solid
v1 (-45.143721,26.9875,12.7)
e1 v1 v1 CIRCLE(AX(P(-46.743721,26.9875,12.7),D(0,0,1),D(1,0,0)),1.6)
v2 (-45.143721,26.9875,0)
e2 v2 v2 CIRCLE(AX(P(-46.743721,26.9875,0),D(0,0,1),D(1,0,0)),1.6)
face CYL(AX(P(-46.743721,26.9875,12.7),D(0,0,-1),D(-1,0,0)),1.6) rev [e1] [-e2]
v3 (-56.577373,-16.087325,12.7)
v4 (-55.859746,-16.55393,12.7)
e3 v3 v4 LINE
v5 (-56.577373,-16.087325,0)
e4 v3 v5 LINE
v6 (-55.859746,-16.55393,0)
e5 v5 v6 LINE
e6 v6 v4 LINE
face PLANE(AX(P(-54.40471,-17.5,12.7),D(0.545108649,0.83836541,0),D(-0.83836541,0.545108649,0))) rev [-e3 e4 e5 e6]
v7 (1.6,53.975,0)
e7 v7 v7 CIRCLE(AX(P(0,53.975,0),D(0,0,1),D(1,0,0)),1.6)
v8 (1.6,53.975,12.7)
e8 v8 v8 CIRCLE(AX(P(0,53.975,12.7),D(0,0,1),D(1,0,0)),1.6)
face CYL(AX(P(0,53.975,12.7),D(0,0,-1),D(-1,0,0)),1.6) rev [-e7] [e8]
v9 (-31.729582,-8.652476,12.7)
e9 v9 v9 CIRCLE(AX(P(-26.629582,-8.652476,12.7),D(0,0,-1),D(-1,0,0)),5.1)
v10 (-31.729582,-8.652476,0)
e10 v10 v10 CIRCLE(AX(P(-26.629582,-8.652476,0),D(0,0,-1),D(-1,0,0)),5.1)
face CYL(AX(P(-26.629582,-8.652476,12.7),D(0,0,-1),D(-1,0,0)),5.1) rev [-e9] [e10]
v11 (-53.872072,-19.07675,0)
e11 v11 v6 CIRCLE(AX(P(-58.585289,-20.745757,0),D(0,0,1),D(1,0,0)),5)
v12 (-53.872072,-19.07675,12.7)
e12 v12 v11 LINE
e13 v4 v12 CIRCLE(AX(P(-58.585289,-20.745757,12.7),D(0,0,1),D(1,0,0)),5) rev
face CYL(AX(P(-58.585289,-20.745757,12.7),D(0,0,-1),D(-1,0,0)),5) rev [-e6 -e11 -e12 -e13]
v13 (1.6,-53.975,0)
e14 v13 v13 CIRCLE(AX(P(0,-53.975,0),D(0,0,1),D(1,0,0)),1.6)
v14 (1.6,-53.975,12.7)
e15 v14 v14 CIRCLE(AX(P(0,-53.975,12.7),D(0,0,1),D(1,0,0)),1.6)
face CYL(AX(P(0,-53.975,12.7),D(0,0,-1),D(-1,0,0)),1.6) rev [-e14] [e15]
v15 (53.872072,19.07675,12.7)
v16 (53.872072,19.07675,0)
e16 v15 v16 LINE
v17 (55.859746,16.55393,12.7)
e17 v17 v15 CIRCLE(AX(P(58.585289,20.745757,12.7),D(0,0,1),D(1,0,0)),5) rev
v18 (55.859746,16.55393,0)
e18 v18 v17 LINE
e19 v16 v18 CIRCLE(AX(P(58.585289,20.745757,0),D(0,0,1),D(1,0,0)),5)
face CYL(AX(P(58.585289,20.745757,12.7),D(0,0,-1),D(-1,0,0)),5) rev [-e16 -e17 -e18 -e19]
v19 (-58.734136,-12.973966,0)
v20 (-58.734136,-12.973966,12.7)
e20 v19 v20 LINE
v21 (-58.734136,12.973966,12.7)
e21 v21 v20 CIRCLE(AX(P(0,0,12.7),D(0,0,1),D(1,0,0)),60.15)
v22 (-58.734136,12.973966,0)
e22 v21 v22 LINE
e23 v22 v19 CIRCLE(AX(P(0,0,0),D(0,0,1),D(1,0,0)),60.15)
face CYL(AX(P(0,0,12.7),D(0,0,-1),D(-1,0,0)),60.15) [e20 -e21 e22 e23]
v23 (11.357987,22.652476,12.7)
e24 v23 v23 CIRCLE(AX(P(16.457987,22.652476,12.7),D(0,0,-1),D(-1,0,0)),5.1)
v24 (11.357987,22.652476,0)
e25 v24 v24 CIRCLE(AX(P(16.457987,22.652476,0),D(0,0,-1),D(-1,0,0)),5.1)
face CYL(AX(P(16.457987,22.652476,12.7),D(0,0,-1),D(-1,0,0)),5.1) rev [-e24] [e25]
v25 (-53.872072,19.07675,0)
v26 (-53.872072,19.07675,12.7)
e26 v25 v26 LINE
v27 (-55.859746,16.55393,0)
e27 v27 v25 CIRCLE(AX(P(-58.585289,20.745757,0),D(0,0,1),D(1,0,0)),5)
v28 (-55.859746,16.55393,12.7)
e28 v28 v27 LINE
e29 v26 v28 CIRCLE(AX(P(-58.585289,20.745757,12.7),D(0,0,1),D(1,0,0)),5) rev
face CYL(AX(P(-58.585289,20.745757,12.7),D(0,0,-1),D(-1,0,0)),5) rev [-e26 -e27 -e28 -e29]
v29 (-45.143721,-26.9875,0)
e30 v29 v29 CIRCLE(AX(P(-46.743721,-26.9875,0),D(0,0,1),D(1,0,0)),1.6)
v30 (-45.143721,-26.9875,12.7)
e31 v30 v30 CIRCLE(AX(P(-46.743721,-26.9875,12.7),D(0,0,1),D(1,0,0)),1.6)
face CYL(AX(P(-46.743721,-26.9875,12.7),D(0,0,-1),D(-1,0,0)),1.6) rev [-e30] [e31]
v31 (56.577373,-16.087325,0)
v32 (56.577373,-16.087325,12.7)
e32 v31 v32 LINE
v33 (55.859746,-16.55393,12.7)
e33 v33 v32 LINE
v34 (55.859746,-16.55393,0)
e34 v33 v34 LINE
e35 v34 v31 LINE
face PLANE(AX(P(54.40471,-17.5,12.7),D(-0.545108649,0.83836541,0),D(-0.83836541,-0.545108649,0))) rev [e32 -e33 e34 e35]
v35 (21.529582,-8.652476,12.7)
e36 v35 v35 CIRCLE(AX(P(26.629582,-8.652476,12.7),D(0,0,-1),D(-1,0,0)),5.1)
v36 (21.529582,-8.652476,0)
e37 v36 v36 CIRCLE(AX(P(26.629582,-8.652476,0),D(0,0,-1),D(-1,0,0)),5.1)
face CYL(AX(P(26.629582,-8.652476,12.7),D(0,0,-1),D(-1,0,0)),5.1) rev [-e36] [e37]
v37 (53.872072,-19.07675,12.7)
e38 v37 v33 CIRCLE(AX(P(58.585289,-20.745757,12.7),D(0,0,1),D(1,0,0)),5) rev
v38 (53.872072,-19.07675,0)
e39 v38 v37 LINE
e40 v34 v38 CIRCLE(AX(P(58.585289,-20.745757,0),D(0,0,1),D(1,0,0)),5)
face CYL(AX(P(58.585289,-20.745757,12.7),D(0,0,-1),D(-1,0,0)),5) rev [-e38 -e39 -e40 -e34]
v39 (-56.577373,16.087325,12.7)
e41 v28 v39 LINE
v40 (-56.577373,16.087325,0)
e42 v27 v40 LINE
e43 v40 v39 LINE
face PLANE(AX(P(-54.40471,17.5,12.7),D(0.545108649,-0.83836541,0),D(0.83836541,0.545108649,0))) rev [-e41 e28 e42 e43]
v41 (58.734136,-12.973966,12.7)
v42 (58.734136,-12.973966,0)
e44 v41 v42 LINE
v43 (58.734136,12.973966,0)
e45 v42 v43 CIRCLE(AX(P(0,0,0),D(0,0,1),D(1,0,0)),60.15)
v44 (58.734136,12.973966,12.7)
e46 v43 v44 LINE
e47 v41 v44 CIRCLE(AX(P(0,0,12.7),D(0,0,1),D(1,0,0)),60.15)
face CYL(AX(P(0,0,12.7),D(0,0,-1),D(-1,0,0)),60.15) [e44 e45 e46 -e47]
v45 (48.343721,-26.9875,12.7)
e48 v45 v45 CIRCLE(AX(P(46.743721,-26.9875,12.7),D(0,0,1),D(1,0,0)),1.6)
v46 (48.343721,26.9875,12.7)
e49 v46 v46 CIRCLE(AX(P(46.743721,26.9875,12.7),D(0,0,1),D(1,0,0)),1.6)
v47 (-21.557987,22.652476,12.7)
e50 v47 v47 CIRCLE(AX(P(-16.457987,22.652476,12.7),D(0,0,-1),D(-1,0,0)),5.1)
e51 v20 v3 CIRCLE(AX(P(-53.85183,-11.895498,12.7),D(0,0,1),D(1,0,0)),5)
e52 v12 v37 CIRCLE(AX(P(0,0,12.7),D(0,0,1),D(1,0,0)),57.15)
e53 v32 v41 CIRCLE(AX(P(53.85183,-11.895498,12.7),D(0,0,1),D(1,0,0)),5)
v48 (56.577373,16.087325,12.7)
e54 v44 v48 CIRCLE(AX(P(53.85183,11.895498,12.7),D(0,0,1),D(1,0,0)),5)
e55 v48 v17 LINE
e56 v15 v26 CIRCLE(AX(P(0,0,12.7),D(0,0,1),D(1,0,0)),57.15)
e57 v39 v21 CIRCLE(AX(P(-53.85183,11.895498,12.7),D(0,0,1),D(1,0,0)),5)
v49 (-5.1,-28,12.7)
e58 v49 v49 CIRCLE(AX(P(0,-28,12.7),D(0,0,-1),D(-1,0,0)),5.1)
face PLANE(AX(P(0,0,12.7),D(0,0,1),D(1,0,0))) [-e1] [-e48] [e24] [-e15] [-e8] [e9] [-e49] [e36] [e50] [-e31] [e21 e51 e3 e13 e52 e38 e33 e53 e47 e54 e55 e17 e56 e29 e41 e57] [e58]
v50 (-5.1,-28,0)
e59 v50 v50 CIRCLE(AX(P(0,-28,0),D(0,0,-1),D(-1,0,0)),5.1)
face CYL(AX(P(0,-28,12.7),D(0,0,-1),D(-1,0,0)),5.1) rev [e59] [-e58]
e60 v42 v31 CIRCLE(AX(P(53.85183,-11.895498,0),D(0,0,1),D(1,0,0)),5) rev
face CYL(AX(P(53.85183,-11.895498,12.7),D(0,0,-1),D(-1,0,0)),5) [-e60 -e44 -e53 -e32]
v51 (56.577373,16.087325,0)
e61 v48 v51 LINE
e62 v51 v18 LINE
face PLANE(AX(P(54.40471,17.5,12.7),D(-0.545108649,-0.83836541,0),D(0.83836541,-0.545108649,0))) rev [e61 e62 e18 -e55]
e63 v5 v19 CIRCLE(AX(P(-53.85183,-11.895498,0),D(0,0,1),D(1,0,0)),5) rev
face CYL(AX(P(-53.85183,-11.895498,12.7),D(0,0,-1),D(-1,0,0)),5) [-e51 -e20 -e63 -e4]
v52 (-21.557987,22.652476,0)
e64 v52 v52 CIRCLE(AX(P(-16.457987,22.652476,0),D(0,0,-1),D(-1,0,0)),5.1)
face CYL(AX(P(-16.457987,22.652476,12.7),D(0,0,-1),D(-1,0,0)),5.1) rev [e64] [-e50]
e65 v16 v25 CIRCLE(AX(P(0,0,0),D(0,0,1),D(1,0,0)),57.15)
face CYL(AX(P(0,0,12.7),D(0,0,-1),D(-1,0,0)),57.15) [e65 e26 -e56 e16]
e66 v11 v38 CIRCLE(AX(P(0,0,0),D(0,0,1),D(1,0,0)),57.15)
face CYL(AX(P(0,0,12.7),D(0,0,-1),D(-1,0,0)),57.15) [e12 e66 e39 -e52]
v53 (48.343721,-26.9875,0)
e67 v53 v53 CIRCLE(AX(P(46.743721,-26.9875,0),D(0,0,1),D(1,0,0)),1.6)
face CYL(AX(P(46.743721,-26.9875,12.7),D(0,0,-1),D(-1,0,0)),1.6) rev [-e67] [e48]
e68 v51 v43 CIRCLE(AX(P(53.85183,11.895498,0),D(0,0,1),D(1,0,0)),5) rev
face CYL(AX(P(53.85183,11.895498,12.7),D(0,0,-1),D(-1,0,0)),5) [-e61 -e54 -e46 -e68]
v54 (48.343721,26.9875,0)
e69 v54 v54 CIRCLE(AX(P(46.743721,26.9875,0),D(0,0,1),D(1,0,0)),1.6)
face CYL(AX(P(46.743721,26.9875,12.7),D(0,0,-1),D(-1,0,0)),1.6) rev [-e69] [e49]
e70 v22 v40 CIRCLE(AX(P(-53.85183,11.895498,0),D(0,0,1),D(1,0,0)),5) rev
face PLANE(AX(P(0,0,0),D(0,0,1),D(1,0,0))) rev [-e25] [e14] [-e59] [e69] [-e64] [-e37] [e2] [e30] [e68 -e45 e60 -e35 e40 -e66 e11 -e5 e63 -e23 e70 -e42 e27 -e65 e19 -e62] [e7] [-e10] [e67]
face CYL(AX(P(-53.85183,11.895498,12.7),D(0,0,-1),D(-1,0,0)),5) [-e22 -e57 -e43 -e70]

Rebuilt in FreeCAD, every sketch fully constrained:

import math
import FreeCAD as App
import Part
import Sketcher
from FreeCAD import Vector
Q = App.Units.Quantity


def edges_at(feature, points):
    """Names of the edges that pass closest to the given points."""
    edges = feature.Shape.Edges
    near = lambda p: min(range(len(edges)), key=lambda i: edges[i].distToShape(Part.Vertex(*p))[0])
    return sorted({f"Edge{near(p) + 1}" for p in points})

doc = App.newDocument("Part")
body = doc.addObject("PartDesign::Body", "Body")

sketch1 = body.newObject("Sketcher::SketchObject", "Sketch")
sketch1.AttachmentSupport = (doc.getObject("XY_Plane"), [""])
sketch1.MapMode = "FlatFace"
sketch1.addGeometry([
    Part.LineSegment(Vector(58.249657, 15, 0), Vector(54.40471, 17.5, 0)),
    Part.ArcOfCircle(Part.Circle(Vector(0, 0, 0), Vector(0, 0, 1), 57.15), math.radians(17.831079), math.radians(162.168921)),
    Part.LineSegment(Vector(-54.40471, 17.5, 0), Vector(-58.249657, 15, 0)),
    Part.ArcOfCircle(Part.Circle(Vector(0, 0, 0), Vector(0, 0, 1), 60.15), math.radians(165.559377), math.radians(194.440623)),
    Part.LineSegment(Vector(-58.249657, -15, 0), Vector(-54.40471, -17.5, 0)),
    Part.ArcOfCircle(Part.Circle(Vector(0, 0, 0), Vector(0, 0, 1), 57.15), math.radians(-162.168921), math.radians(-17.831079)),
    Part.LineSegment(Vector(54.40471, -17.5, 0), Vector(58.249657, -15, 0)),
    Part.ArcOfCircle(Part.Circle(Vector(0, 0, 0), Vector(0, 0, 1), 60.15), math.radians(-14.440623), math.radians(14.440623)),
    Part.Circle(Vector(46.743721, -26.9875, 0), Vector(0, 0, 1), 1.6),
    Part.Circle(Vector(0, -53.975, 0), Vector(0, 0, 1), 1.6),
    Part.Circle(Vector(-46.743721, -26.9875, 0), Vector(0, 0, 1), 1.6),
    Part.Circle(Vector(46.743721, 26.9875, 0), Vector(0, 0, 1), 1.6),
    Part.Circle(Vector(-46.743721, 26.9875, 0), Vector(0, 0, 1), 1.6),
    Part.Circle(Vector(0, 53.975, 0), Vector(0, 0, 1), 1.6),
], False)
sketch1.addConstraint([
    Sketcher.Constraint("Coincident", 0, 2, 1, 1),
    Sketcher.Constraint("Coincident", 1, 2, 2, 1),
    Sketcher.Constraint("Coincident", 2, 2, 3, 1),
    Sketcher.Constraint("Coincident", 3, 2, 4, 1),
    Sketcher.Constraint("Coincident", 4, 2, 5, 1),
    Sketcher.Constraint("Coincident", 5, 2, 6, 1),
    Sketcher.Constraint("Coincident", 6, 2, 7, 1),
    Sketcher.Constraint("Coincident", 7, 2, 0, 1),
    Sketcher.Constraint("Coincident", 1, 3, -1, 1),
    Sketcher.Constraint("Coincident", 3, 3, -1, 1),
    Sketcher.Constraint("Coincident", 5, 3, -1, 1),
    Sketcher.Constraint("Coincident", 7, 3, -1, 1),
    Sketcher.Constraint("Equal", 1, 5),
    Sketcher.Constraint("Equal", 3, 7),
    Sketcher.Constraint("Equal", 8, 9),
    Sketcher.Constraint("Equal", 9, 10),
    Sketcher.Constraint("Equal", 10, 11),
    Sketcher.Constraint("Equal", 11, 12),
    Sketcher.Constraint("Equal", 12, 13),
    Sketcher.Constraint("Symmetric", 10, 3, 11, 3, -1, 1),
    Sketcher.Constraint("Symmetric", 8, 3, 12, 3, -1, 1),
    Sketcher.Constraint("Symmetric", 9, 3, 13, 3, -1, 1),
    Sketcher.Constraint("Symmetric", 8, 3, 10, 3, -2),
    Sketcher.Constraint("PointOnObject", 9, 3, -2),
    Sketcher.Constraint("Parallel", 0, 4),
    Sketcher.Constraint("Parallel", 2, 6),
    Sketcher.Constraint("Horizontal", 0, 2, 1, 2),
    Sketcher.Constraint("Horizontal", 4, 2, 5, 2),
    Sketcher.Constraint("Horizontal", 3, 2, 6, 2),
    Sketcher.Constraint("Vertical", 2, 2, 3, 2),
    Sketcher.Constraint("Diameter", 8, Q("3.2 mm")),
    Sketcher.Constraint("Radius", 1, Q("57.15 mm")),
    Sketcher.Constraint("Radius", 3, Q("60.15 mm")),
    Sketcher.Constraint("DistanceY", -1, 1, 2, 2, Q("15 mm")),
    Sketcher.Constraint("DistanceY", 4, 2, 1, 2, Q("35 mm")),
    Sketcher.Constraint("DistanceY", 9, 3, -1, 1, Q("53.975 mm")),
    Sketcher.Constraint("DistanceY", 8, 3, 11, 3, Q("53.975 mm")),
    Sketcher.Constraint("DistanceX", -1, 1, 8, 3, Q("46.743721 mm")),
])
pad1 = body.newObject("PartDesign::Pad", "Pad")
pad1.Profile = sketch1
pad1.Length = 12.7

sketch2 = body.newObject("Sketcher::SketchObject", "Sketch001")
sketch2.AttachmentSupport = (doc.getObject("XY_Plane"), [""])
sketch2.MapMode = "FlatFace"
sketch2.addGeometry([
    Part.Circle(Vector(-16.457987, 22.652476, 0), Vector(0, 0, 1), 5.1),
    Part.Circle(Vector(26.629582, -8.652476, 0), Vector(0, 0, 1), 5.1),
    Part.Circle(Vector(-26.629582, -8.652476, 0), Vector(0, 0, 1), 5.1),
    Part.Circle(Vector(16.457987, 22.652476, 0), Vector(0, 0, 1), 5.1),
    Part.Circle(Vector(0, -28, 0), Vector(0, 0, 1), 5.1),
], False)
sketch2.addConstraint([
    Sketcher.Constraint("Equal", 0, 1),
    Sketcher.Constraint("Equal", 1, 2),
    Sketcher.Constraint("Equal", 2, 3),
    Sketcher.Constraint("Equal", 3, 4),
    Sketcher.Constraint("Symmetric", 1, 3, 2, 3, -2),
    Sketcher.Constraint("Symmetric", 0, 3, 3, 3, -2),
    Sketcher.Constraint("PointOnObject", 4, 3, -2),
    Sketcher.Constraint("Diameter", 0, Q("10.2 mm")),
    Sketcher.Constraint("DistanceY", 4, 3, -1, 1, Q("28 mm")),
    Sketcher.Constraint("DistanceX", 0, 3, 1, 3, Q("43.08757 mm")),
    Sketcher.Constraint("DistanceY", 1, 3, 0, 3, Q("31.304952 mm")),
    Sketcher.Constraint("DistanceX", 0, 3, -1, 1, Q("16.457987 mm")),
    Sketcher.Constraint("DistanceY", -1, 1, 0, 3, Q("22.652476 mm")),
])
pocket1 = body.newObject("PartDesign::Pocket", "Pocket")
pocket1.Profile = sketch2
pocket1.Type = "ThroughAll"
pocket1.Reversed = True
doc.recompute()

fillet = body.newObject("PartDesign::Fillet", "Fillet")
fillet.Base = (pocket1, edges_at(pocket1, [
    (54.405, 17.5, 6.35),
    (58.25, 15, 6.35),
    (58.25, -15, 6.35),
    (54.405, -17.5, 6.35),
    (-54.405, -17.5, 6.35),
    (-58.25, -15, 6.35),
    (-58.25, 15, 6.35),
    (-54.405, 17.5, 6.35),
]))
fillet.Radius = 5

doc.recompute()
